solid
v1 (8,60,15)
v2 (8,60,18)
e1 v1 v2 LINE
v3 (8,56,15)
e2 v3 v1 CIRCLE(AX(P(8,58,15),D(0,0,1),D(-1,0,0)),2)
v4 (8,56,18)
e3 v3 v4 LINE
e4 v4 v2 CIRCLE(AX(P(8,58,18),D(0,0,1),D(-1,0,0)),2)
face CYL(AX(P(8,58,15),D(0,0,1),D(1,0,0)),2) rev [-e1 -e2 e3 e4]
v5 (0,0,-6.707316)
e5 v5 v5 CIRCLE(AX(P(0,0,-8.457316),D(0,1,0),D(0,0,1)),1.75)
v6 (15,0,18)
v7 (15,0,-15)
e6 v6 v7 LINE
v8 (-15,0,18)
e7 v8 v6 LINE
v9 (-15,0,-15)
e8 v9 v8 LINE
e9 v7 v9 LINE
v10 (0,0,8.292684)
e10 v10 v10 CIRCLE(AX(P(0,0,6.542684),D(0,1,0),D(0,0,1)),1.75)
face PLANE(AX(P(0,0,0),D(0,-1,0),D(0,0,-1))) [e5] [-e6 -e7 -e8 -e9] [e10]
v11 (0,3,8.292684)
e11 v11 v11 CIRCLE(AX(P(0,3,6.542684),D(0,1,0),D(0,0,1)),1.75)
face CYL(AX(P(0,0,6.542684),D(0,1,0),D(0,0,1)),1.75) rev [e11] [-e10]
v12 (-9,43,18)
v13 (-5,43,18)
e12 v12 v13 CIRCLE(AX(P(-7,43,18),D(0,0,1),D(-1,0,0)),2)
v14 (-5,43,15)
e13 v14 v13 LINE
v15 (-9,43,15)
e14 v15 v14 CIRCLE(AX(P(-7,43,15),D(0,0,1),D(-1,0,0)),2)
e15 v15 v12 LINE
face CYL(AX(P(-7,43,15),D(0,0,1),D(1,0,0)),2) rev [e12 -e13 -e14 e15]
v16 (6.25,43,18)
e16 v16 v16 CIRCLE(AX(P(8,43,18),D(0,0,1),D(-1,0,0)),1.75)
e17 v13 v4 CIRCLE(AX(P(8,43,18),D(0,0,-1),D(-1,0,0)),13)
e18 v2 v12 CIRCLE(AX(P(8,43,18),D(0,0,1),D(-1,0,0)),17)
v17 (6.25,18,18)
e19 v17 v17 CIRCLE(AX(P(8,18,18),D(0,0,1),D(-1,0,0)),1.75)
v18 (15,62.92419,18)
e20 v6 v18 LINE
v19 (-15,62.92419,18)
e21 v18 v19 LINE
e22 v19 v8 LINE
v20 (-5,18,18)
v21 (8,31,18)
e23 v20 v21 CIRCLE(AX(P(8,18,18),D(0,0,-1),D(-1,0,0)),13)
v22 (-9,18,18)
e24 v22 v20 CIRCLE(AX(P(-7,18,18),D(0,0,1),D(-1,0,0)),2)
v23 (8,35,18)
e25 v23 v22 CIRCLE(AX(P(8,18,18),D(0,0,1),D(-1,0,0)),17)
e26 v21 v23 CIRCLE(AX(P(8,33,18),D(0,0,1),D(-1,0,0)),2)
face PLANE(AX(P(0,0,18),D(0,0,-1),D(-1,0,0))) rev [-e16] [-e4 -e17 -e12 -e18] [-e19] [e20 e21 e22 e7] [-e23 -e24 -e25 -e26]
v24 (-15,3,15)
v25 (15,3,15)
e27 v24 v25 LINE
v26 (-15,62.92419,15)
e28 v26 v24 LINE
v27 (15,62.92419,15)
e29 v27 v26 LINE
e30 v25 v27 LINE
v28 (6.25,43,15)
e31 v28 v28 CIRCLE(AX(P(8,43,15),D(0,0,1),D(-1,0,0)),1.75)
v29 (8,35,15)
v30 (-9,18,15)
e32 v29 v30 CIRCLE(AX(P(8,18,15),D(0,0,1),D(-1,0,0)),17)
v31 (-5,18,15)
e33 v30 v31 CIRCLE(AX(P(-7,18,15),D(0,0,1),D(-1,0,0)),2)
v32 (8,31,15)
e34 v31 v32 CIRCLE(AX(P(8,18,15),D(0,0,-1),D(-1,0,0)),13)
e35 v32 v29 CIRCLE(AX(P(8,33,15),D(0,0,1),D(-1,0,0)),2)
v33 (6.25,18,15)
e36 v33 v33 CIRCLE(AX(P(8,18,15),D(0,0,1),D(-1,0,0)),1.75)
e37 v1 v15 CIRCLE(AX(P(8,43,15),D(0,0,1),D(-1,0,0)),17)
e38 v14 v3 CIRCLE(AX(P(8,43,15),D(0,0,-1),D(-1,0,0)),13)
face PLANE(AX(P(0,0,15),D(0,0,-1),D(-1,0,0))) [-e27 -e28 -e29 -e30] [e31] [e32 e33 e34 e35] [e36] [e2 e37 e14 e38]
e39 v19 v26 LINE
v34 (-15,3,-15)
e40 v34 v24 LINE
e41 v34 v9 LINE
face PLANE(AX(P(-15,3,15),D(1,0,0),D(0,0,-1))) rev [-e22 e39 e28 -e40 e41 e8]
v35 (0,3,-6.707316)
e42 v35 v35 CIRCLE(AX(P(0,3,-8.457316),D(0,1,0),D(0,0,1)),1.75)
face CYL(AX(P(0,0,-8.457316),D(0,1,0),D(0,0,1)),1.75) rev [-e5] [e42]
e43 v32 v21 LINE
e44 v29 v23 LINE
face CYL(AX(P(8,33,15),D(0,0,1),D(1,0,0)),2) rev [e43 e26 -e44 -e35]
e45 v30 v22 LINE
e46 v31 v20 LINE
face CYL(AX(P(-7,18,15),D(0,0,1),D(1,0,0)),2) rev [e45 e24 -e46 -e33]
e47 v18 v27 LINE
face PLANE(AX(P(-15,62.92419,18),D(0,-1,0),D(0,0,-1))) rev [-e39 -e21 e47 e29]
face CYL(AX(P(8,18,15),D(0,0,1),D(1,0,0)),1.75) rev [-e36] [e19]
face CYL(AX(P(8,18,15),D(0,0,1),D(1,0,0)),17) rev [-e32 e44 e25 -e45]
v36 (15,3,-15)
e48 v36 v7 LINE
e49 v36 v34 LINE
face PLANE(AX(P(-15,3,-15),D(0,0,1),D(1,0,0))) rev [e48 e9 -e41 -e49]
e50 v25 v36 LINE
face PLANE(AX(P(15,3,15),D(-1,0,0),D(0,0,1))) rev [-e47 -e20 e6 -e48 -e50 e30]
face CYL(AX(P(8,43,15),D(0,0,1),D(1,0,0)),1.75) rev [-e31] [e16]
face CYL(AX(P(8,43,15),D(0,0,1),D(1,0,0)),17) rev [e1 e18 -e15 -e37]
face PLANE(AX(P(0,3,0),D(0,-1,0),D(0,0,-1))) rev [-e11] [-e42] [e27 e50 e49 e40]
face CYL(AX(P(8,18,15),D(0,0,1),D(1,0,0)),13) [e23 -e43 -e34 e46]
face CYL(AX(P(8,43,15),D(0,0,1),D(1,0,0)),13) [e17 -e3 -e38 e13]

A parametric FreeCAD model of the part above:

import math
import FreeCAD as App
import Part
import Sketcher
from FreeCAD import Vector


def add_polygon(sketch, points):
    """Adds a closed chain of lines whose ends are joined by coincident constraints."""
    first, n = sketch.GeometryCount, len(points)
    for a, b in zip(points, points[1:] + points[:1]):
        sketch.addGeometry(Part.LineSegment(App.Vector(*a, 0), App.Vector(*b, 0)), False)
    for i in range(n):
        sketch.addConstraint(Sketcher.Constraint("Coincident", first + i, 2, first + (i + 1) % n, 1))

doc = App.newDocument("Part")
body = doc.addObject("PartDesign::Body", "Body")

sketch1 = body.newObject("Sketcher::SketchObject", "Sketch")
sketch1.AttachmentSupport = (doc.getObject("XZ_Plane"), [""])
sketch1.MapMode = "FlatFace"
add_polygon(sketch1, [(-15, -15), (-15, 15), (15, 15), (15, -15)])
sketch1.addConstraint([
    Sketcher.Constraint("Vertical", 0),
    Sketcher.Constraint("Horizontal", 1),
    Sketcher.Constraint("Vertical", 2),
    Sketcher.Constraint("Horizontal", 3),
    Sketcher.Constraint("Symmetric", 0, 2, 2, 2, -1, 1),
    Sketcher.Constraint("Equal", 3, 0),
    Sketcher.Constraint("DistanceX", 1, 1, 1, 2, 30.0),
])
pad1 = body.newObject("PartDesign::Pad", "Pad")
pad1.Profile = sketch1
pad1.Length = 3
pad1.Reversed = True

sketch2 = body.newObject("Sketcher::SketchObject", "Sketch001")
sketch2.AttachmentSupport = (doc.getObject("XZ_Plane"), [""])
sketch2.MapMode = "FlatFace"
sketch2.AttachmentOffset = App.Placement(Vector(0, 0, -3), App.Rotation())
sketch2.addGeometry([
    Part.Circle(Vector(0, 6.5, 0), Vector(0, 0, 1), 1.8),
    Part.Circle(Vector(0, -8.5, 0), Vector(0, 0, 1), 1.8),
], False)
sketch2.addConstraint([
    Sketcher.Constraint("Equal", 0, 1),
    Sketcher.Constraint("PointOnObject", 0, 3, -2),
    Sketcher.Constraint("PointOnObject", 1, 3, -2),
    Sketcher.Constraint("Diameter", 0, 3.5),
    Sketcher.Constraint("DistanceY", 1, 3, 0, 3, 15.0),
    Sketcher.Constraint("DistanceY", -1, 1, 0, 3, 6.542684),
])
pocket1 = body.newObject("PartDesign::Pocket", "Pocket")
pocket1.Profile = sketch2
pocket1.Length = 3
pocket1.Reversed = True

sketch3 = body.newObject("Sketcher::SketchObject", "Sketch002")
sketch3.AttachmentSupport = (doc.getObject("XY_Plane"), [""])
sketch3.MapMode = "FlatFace"
sketch3.AttachmentOffset = App.Placement(Vector(0, 0, 15), App.Rotation())
add_polygon(sketch3, [(-15, 63), (-15, 0), (15, 0), (15, 63)])
sketch3.addConstraint([
    Sketcher.Constraint("Vertical", 0),
    Sketcher.Constraint("Horizontal", 1),
    Sketcher.Constraint("Vertical", 2),
    Sketcher.Constraint("Horizontal", 3),
    Sketcher.Constraint("Symmetric", 0, 2, 1, 2, -1, 1),
    Sketcher.Constraint("DistanceX", 1, 1, 1, 2, 30.0),
    Sketcher.Constraint("DistanceY", 0, 2, 0, 1, 62.92419),
])
pad2 = body.newObject("PartDesign::Pad", "Pad001")
pad2.Profile = sketch3
pad2.Length = 3

sketch4 = body.newObject("Sketcher::SketchObject", "Sketch003")
sketch4.AttachmentSupport = (doc.getObject("XY_Plane"), [""])
sketch4.MapMode = "FlatFace"
sketch4.AttachmentOffset = App.Placement(Vector(0, 0, 18), App.Rotation())
sketch4.addGeometry([
    Part.Circle(Vector(8, 43, 0), Vector(0, 0, 1), 1.8),
    Part.Circle(Vector(8, 18, 0), Vector(0, 0, 1), 1.8),
    Part.ArcOfCircle(Part.Circle(Vector(8, 58, 0), Vector(0, 0, 1), 2), math.radians(-90), math.radians(90)),
    Part.ArcOfCircle(Part.Circle(Vector(8, 43, 0), Vector(0, 0, 1), 17), math.radians(90), math.radians(180)),
    Part.ArcOfCircle(Part.Circle(Vector(-7, 43, 0), Vector(0, 0, 1), 2), math.radians(180), math.radians(360)),
    Part.ArcOfCircle(Part.Circle(Vector(8, 43, 0), Vector(0, 0, 1), 13), math.radians(90), math.radians(180)),
    Part.ArcOfCircle(Part.Circle(Vector(-7, 18, 0), Vector(0, 0, 1), 2), math.radians(180), math.radians(360)),
    Part.ArcOfCircle(Part.Circle(Vector(8, 18, 0), Vector(0, 0, 1), 13), math.radians(90), math.radians(180)),
    Part.ArcOfCircle(Part.Circle(Vector(8, 33, 0), Vector(0, 0, 1), 2), math.radians(-90), math.radians(90)),
    Part.ArcOfCircle(Part.Circle(Vector(8, 18, 0), Vector(0, 0, 1), 17), math.radians(90), math.radians(180)),
], False)
sketch4.addConstraint([
    Sketcher.Constraint("Tangent", 2, 2, 3, 1),
    Sketcher.Constraint("Tangent", 3, 2, 4, 1),
    Sketcher.Constraint("Tangent", 4, 2, 5, 2),
    Sketcher.Constraint("Tangent", 5, 1, 2, 1),
    Sketcher.Constraint("Tangent", 6, 2, 7, 2),
    Sketcher.Constraint("Tangent", 7, 1, 8, 1),
    Sketcher.Constraint("Tangent", 8, 2, 9, 1),
    Sketcher.Constraint("Tangent", 9, 2, 6, 1),
    Sketcher.Constraint("Coincident", 3, 3, 0, 3),
    Sketcher.Constraint("Coincident", 5, 3, 0, 3),
    Sketcher.Constraint("Coincident", 7, 3, 1, 3),
    Sketcher.Constraint("Coincident", 9, 3, 1, 3),
    Sketcher.Constraint("Equal", 0, 1),
    Sketcher.Constraint("Equal", 4, 6),
    Sketcher.Constraint("Equal", 5, 7),
    Sketcher.Constraint("Horizontal", 3, 3, 4, 3),
    Sketcher.Constraint("Horizontal", 1, 3, 6, 3),
    Sketcher.Constraint("Vertical", 0, 3, 1, 3),
    Sketcher.Constraint("Vertical", 1, 3, 2, 3),
    Sketcher.Constraint("Vertical", 7, 3, 8, 3),
    Sketcher.Constraint("Radius", 2, 2.0),
    Sketcher.Constraint("Radius", 3, 17.0),
    Sketcher.Constraint("Diameter", 0, 3.5),
    Sketcher.Constraint("DistanceX", -1, 1, 0, 3, 8.0),
    Sketcher.Constraint("DistanceY", -1, 1, 0, 3, 43.0),
    Sketcher.Constraint("DistanceY", -1, 1, 1, 3, 18.0),
])
pocket2 = body.newObject("PartDesign::Pocket", "Pocket001")
pocket2.Profile = sketch4
pocket2.Length = 3

doc.recompute()
